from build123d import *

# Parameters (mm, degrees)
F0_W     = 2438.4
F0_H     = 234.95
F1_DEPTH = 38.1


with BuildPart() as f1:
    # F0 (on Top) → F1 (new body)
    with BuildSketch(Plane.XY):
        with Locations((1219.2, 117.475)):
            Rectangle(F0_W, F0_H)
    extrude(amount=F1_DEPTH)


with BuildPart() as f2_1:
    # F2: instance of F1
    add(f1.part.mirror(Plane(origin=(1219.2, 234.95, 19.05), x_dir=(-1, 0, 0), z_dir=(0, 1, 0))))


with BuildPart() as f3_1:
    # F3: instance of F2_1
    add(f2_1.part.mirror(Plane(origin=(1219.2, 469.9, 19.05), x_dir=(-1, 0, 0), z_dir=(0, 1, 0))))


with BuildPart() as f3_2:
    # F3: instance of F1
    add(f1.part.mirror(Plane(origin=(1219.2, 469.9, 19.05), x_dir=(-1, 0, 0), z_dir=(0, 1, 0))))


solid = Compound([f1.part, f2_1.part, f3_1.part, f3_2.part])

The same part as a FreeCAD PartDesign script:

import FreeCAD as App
import Part
import Sketcher

V = App.Vector
Q = App.Units.Quantity


def add_polygon(sketch, points):
    """Adds a closed chain of lines whose ends are joined by coincident constraints."""
    first, n = sketch.GeometryCount, len(points)
    for a, b in zip(points, points[1:] + points[:1]):
        sketch.addGeometry(Part.LineSegment(App.Vector(*a, 0), App.Vector(*b, 0)), False)
    for i in range(n):
        sketch.addConstraint(Sketcher.Constraint("Coincident", first + i, 2, first + (i + 1) % n, 1))

doc = App.newDocument("Part")
body = doc.addObject("PartDesign::Body", "Body")

# Sketch on XY plane
sketch1 = body.newObject("Sketcher::SketchObject", "Sketch")
sketch1.AttachmentSupport = (doc.getObject("XY_Plane"), [""])
sketch1.MapMode = "FlatFace"
add_polygon(sketch1, [(0, 235), (0, 0), (2438, 0), (2438, 235)])  # lines 0-3
sketch1.addConstraint(Sketcher.Constraint("Vertical", 0))
sketch1.addConstraint(Sketcher.Constraint("Horizontal", 1))
sketch1.addConstraint(Sketcher.Constraint("Vertical", 2))
sketch1.addConstraint(Sketcher.Constraint("Horizontal", 3))
sketch1.addConstraint(Sketcher.Constraint("Coincident", 0, 2, -1, 1))
sketch1.addConstraint(Sketcher.Constraint("DistanceX", 1, 1, 1, 2, Q("96 in")))
sketch1.addConstraint(Sketcher.Constraint("DistanceY", 0, 2, 0, 1, Q("9.25 in")))
pad1 = body.newObject("PartDesign::Pad", "Pad")
pad1.Profile = sketch1
pad1.Length = Q("1.5 in")
body2 = doc.addObject("PartDesign::Body", "Body001")
doc.recompute()

mirroring = doc.addObject("Part::Mirroring", "Mirroring")
mirroring.Source = body
mirroring.Base = V(1219.2, 234.95, 19.05)
mirroring.Normal = V(0, 1, 0)
body2.BaseFeature = mirroring
doc.recompute()
body3 = doc.addObject("PartDesign::Body", "Body002")
doc.recompute()

mirroring2 = doc.addObject("Part::Mirroring", "Mirroring001")
mirroring2.Source = body2
mirroring2.Base = V(1219.2, 469.9, 19.05)
mirroring2.Normal = V(0, 1, 0)
body3.BaseFeature = mirroring2
doc.recompute()
body4 = doc.addObject("PartDesign::Body", "Body003")
doc.recompute()

mirroring3 = doc.addObject("Part::Mirroring", "Mirroring002")
mirroring3.Source = body
mirroring3.Base = V(1219.2, 469.9, 19.05)
mirroring3.Normal = V(0, 1, 0)
body4.BaseFeature = mirroring3
doc.recompute()
mirroring.Visibility = False
mirroring2.Visibility = False
mirroring3.Visibility = False

doc.recompute()
